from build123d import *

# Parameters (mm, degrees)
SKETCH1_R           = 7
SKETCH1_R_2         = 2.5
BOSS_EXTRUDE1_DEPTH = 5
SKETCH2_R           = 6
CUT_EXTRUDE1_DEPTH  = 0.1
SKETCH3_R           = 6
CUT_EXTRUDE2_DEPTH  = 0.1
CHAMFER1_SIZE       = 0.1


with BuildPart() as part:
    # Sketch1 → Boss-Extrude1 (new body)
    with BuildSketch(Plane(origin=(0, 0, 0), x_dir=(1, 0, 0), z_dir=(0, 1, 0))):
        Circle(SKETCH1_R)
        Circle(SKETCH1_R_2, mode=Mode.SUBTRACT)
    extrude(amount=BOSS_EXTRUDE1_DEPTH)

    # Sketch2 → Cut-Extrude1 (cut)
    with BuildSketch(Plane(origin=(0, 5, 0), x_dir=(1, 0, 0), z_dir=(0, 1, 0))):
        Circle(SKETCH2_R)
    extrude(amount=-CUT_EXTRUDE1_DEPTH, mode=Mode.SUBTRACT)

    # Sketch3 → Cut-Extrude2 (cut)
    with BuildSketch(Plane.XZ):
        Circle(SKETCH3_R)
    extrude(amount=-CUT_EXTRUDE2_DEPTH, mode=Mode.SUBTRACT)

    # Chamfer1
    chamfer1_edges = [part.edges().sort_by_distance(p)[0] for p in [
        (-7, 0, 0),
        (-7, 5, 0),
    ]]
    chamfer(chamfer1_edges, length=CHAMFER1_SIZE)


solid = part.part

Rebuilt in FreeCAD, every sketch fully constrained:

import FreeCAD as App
import Part
import Sketcher
from FreeCAD import Vector
Q = App.Units.Quantity


def edges_at(feature, points):
    """Names of the edges that pass closest to the given points."""
    edges = feature.Shape.Edges
    near = lambda p: min(range(len(edges)), key=lambda i: edges[i].distToShape(Part.Vertex(*p))[0])
    return sorted({f"Edge{near(p) + 1}" for p in points})

doc = App.newDocument("Part")
params = doc.addObject("Spreadsheet::Sheet", "Params")
for row, (alias, value) in enumerate([
    ("sketch1_diameter", "14 mm"),
    ("sketch1_diameter2", "5 mm"),
    ("pad1_length", "5 mm"),
    ("sketch2_diameter", "12 mm"),
    ("pocket1_length", "0.1 mm"),
    ("sketch3_diameter", "12 mm"),
    ("pocket2_length", "0.1 mm"),
    ("chamfer_size", "0.1 mm"),
], start=1):
    params.set(f"A{row}", alias)
    params.set(f"B{row}", "=" + value)
    params.setAlias(f"B{row}", alias)

body = doc.addObject("PartDesign::Body", "Body")

# Sketch on XZ plane
sketch1 = doc.addObject("Sketcher::SketchObject", "Sketch")
body.addObject(sketch1)
sketch1.AttachmentSupport = (doc.XZ_Plane, [""])
sketch1.MapMode = "FlatFace"
sketch1.addGeometry([
    Part.Circle(Vector(0, 0, 0), Vector(0, 0, 1), 7),
    Part.Circle(Vector(0, 0, 0), Vector(0, 0, 1), 2.5),
], False)
sketch1.addConstraint([
    Sketcher.Constraint("Coincident", 0, 3, -1, 1),
    Sketcher.Constraint("Coincident", 1, 3, -1, 1),
    Sketcher.Constraint("Diameter", 0, Q("14 mm")),
    Sketcher.Constraint("Diameter", 1, Q("5 mm")),
])
sketch1.setExpression("Constraints[2]", "Params.sketch1_diameter")
sketch1.setExpression("Constraints[3]", "Params.sketch1_diameter2")
pad1 = doc.addObject("PartDesign::Pad", "Pad")
body.addObject(pad1)
pad1.Profile = sketch1
pad1.setExpression("Length", "Params.pad1_length")
pad1.Reversed = True

# Sketch on XZ plane
sketch2 = doc.addObject("Sketcher::SketchObject", "Sketch001")
body.addObject(sketch2)
sketch2.AttachmentSupport = (doc.XZ_Plane, [""])
sketch2.MapMode = "FlatFace"
sketch2.AttachmentOffset = App.Placement(Vector(0, 0, -5), App.Rotation())
sketch2.addGeometry(Part.Circle(Vector(0, 0, 0), Vector(0, 0, 1), 6), False)
sketch2.addConstraint([
    Sketcher.Constraint("Coincident", 0, 3, -1, 1),
    Sketcher.Constraint("Diameter", 0, Q("12 mm")),
])
sketch2.setExpression("Constraints[1]", "Params.sketch2_diameter")
pocket1 = doc.addObject("PartDesign::Pocket", "Pocket")
body.addObject(pocket1)
pocket1.Profile = sketch2
pocket1.setExpression("Length", "Params.pocket1_length")
pocket1.Reversed = True

# Sketch on XZ plane
sketch3 = doc.addObject("Sketcher::SketchObject", "Sketch002")
body.addObject(sketch3)
sketch3.AttachmentSupport = (doc.XZ_Plane, [""])
sketch3.MapMode = "FlatFace"
sketch3.addGeometry(Part.Circle(Vector(0, 0, 0), Vector(0, 0, 1), 6), False)
sketch3.addConstraint([
    Sketcher.Constraint("Coincident", 0, 3, -1, 1),
    Sketcher.Constraint("Diameter", 0, Q("12 mm")),
])
sketch3.setExpression("Constraints[1]", "Params.sketch3_diameter")
pocket2 = doc.addObject("PartDesign::Pocket", "Pocket001")
body.addObject(pocket2)
pocket2.Profile = sketch3
pocket2.setExpression("Length", "Params.pocket2_length")
doc.recompute()

chamfer = doc.addObject("PartDesign::Chamfer", "Chamfer")
body.addObject(chamfer)
chamfer.Base = (pocket2, edges_at(pocket2, [(-7, 0, 0), (-7, 5, 0)]))
chamfer.setExpression("Size", "Params.chamfer_size")

doc.recompute()
